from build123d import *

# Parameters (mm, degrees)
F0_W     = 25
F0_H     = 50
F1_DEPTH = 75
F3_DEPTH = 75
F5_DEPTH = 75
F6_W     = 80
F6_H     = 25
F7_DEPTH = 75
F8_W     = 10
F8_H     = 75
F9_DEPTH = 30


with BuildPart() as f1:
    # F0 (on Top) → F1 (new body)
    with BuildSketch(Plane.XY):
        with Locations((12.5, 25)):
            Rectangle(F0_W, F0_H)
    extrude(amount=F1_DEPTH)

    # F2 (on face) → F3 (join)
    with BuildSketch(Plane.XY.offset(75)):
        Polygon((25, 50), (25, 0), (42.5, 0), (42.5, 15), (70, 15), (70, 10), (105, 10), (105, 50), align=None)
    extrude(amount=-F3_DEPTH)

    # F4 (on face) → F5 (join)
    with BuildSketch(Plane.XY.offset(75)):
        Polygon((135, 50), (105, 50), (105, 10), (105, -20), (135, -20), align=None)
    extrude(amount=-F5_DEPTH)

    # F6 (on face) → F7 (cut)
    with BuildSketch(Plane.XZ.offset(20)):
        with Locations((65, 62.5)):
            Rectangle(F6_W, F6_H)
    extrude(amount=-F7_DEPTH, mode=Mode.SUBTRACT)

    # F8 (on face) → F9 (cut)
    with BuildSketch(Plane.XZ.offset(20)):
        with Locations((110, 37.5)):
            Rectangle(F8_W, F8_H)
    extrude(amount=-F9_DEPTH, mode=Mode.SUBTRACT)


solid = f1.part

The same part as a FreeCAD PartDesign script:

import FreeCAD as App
import Part
import Sketcher
Q = App.Units.Quantity

doc = App.newDocument("Part")
params = doc.addObject("Spreadsheet::Sheet", "Params")
for row, (alias, value) in enumerate([
    ("sketch1_width", "25 mm"),
    ("sketch1_height", "50 mm"),
    ("pad1_length", "75 mm"),
    ("sketch2_width", "35 mm"),
    ("sketch2_width2", "80 mm"),
    ("sketch2_height", "50 mm"),
    ("sketch2_height2", "15 mm"),
    ("sketch2_height3", "5 mm"),
    ("pad2_length", "75 mm"),
    ("sketch3_width", "30 mm"),
    ("sketch3_height", "70 mm"),
    ("pad3_length", "75 mm"),
    ("sketch4_width", "80 mm"),
    ("sketch4_height", "25 mm"),
    ("pocket1_length", "75 mm"),
    ("sketch5_width", "10 mm"),
    ("sketch5_height", "75 mm"),
    ("pocket2_length", "30 mm"),
], start=1):
    params.set(f"A{row}", alias)
    params.set(f"B{row}", "=" + value)
    params.setAlias(f"B{row}", alias)

body = doc.addObject("PartDesign::Body", "Body")

# Sketch on XY plane
sketch1 = doc.addObject("Sketcher::SketchObject", "Sketch")
body.addObject(sketch1)
sketch1.AttachmentSupport = (doc.XY_Plane, [""])
sketch1.MapMode = "FlatFace"
sketch1.addGeometry([
    Part.LineSegment(App.Vector(0, 50, 0), App.Vector(0, 0, 0)),
    Part.LineSegment(App.Vector(0, 0, 0), App.Vector(25, 0, 0)),
    Part.LineSegment(App.Vector(25, 0, 0), App.Vector(25, 50, 0)),
    Part.LineSegment(App.Vector(25, 50, 0), App.Vector(0, 50, 0)),
], False)
sketch1.addConstraint([
    Sketcher.Constraint("Coincident", 0, 2, 1, 1),
    Sketcher.Constraint("Coincident", 1, 2, 2, 1),
    Sketcher.Constraint("Coincident", 2, 2, 3, 1),
    Sketcher.Constraint("Coincident", 3, 2, 0, 1),
    Sketcher.Constraint("Vertical", 0),
    Sketcher.Constraint("Horizontal", 1),
    Sketcher.Constraint("Vertical", 2),
    Sketcher.Constraint("Horizontal", 3),
    Sketcher.Constraint("Coincident", 0, 2, -1, 1),
    Sketcher.Constraint("DistanceX", 1, 1, 1, 2, Q("25 mm")),
    Sketcher.Constraint("DistanceY", 0, 2, 0, 1, Q("50 mm")),
])
sketch1.setExpression("Constraints[9]", "Params.sketch1_width")
sketch1.setExpression("Constraints[10]", "Params.sketch1_height")
pad1 = doc.addObject("PartDesign::Pad", "Pad")
body.addObject(pad1)
pad1.Profile = sketch1
pad1.setExpression("Length", "Params.pad1_length")

# Sketch on XY plane
sketch2 = doc.addObject("Sketcher::SketchObject", "Sketch001")
body.addObject(sketch2)
sketch2.AttachmentSupport = (doc.XY_Plane, [""])
sketch2.MapMode = "FlatFace"
sketch2.AttachmentOffset = App.Placement(App.Vector(0, 0, 75), App.Rotation())
sketch2.addGeometry([
    Part.LineSegment(App.Vector(25, 50, 0), App.Vector(25, 0, 0)),  # 0
    Part.LineSegment(App.Vector(25, 0, 0), App.Vector(42, 0, 0)),  # 1
    Part.LineSegment(App.Vector(42, 0, 0), App.Vector(42, 15, 0)),  # 2
    Part.LineSegment(App.Vector(42, 15, 0), App.Vector(70, 15, 0)),  # 3
    Part.LineSegment(App.Vector(70, 15, 0), App.Vector(70, 10, 0)),  # 4
    Part.LineSegment(App.Vector(70, 10, 0), App.Vector(105, 10, 0)),  # 5
    Part.LineSegment(App.Vector(105, 10, 0), App.Vector(105, 50, 0)),  # 6
    Part.LineSegment(App.Vector(105, 50, 0), App.Vector(25, 50, 0)),  # 7
], False)
sketch2.addConstraint([
    Sketcher.Constraint("Coincident", 0, 2, 1, 1),
    Sketcher.Constraint("Coincident", 1, 2, 2, 1),
    Sketcher.Constraint("Coincident", 2, 2, 3, 1),
    Sketcher.Constraint("Coincident", 3, 2, 4, 1),
    Sketcher.Constraint("Coincident", 4, 2, 5, 1),
    Sketcher.Constraint("Coincident", 5, 2, 6, 1),
    Sketcher.Constraint("Coincident", 6, 2, 7, 1),
    Sketcher.Constraint("Coincident", 7, 2, 0, 1),
    Sketcher.Constraint("Vertical", 0),
    Sketcher.Constraint("Horizontal", 1),
    Sketcher.Constraint("Vertical", 2),
    Sketcher.Constraint("Horizontal", 3),
    Sketcher.Constraint("Vertical", 4),
    Sketcher.Constraint("Horizontal", 5),
    Sketcher.Constraint("Vertical", 6),
    Sketcher.Constraint("Horizontal", 7),
    Sketcher.Constraint("PointOnObject", 0, 2, -1),
    Sketcher.Constraint("DistanceX", 5, 1, 5, 2, Q("35 mm")),
    Sketcher.Constraint("DistanceX", 7, 2, 7, 1, Q("80 mm")),
    Sketcher.Constraint("DistanceY", 0, 2, 0, 1, Q("50 mm")),
    Sketcher.Constraint("DistanceY", 2, 1, 2, 2, Q("15 mm")),
    Sketcher.Constraint("DistanceY", 4, 2, 4, 1, Q("5 mm")),
    Sketcher.Constraint("DistanceX", 1, 1, 1, 2, Q("17.5 mm")),
    Sketcher.Constraint("DistanceX", -1, 1, 0, 2, Q("25 mm")),
])
sketch2.setExpression("Constraints[17]", "Params.sketch2_width")
sketch2.setExpression("Constraints[18]", "Params.sketch2_width2")
sketch2.setExpression("Constraints[19]", "Params.sketch2_height")
sketch2.setExpression("Constraints[20]", "Params.sketch2_height2")
sketch2.setExpression("Constraints[21]", "Params.sketch2_height3")
pad2 = doc.addObject("PartDesign::Pad", "Pad001")
body.addObject(pad2)
pad2.Profile = sketch2
pad2.setExpression("Length", "Params.pad2_length")
pad2.Reversed = True

# Sketch on XY plane
sketch3 = doc.addObject("Sketcher::SketchObject", "Sketch002")
body.addObject(sketch3)
sketch3.AttachmentSupport = (doc.XY_Plane, [""])
sketch3.MapMode = "FlatFace"
sketch3.AttachmentOffset = App.Placement(App.Vector(0, 0, 75), App.Rotation())
sketch3.addGeometry([
    Part.LineSegment(App.Vector(135, 50, 0), App.Vector(105, 50, 0)),
    Part.LineSegment(App.Vector(105, 50, 0), App.Vector(105, -20, 0)),
    Part.LineSegment(App.Vector(105, -20, 0), App.Vector(135, -20, 0)),
    Part.LineSegment(App.Vector(135, -20, 0), App.Vector(135, 50, 0)),
], False)
sketch3.addConstraint([
    Sketcher.Constraint("Coincident", 0, 2, 1, 1),
    Sketcher.Constraint("Coincident", 1, 2, 2, 1),
    Sketcher.Constraint("Coincident", 2, 2, 3, 1),
    Sketcher.Constraint("Coincident", 3, 2, 0, 1),
    Sketcher.Constraint("Horizontal", 0),
    Sketcher.Constraint("Vertical", 1),
    Sketcher.Constraint("Horizontal", 2),
    Sketcher.Constraint("Vertical", 3),
    Sketcher.Constraint("DistanceX", 0, 2, 0, 1, Q("30 mm")),
    Sketcher.Constraint("DistanceY", 1, 2, 1, 1, Q("70 mm")),
    Sketcher.Constraint("DistanceX", -1, 1, 0, 2, Q("105 mm")),
    Sketcher.Constraint("DistanceY", -1, 1, 0, 2, Q("50 mm")),
])
sketch3.setExpression("Constraints[8]", "Params.sketch3_width")
sketch3.setExpression("Constraints[9]", "Params.sketch3_height")
pad3 = doc.addObject("PartDesign::Pad", "Pad002")
body.addObject(pad3)
pad3.Profile = sketch3
pad3.setExpression("Length", "Params.pad3_length")
pad3.Reversed = True

# Sketch on XZ plane
sketch4 = doc.addObject("Sketcher::SketchObject", "Sketch003")
body.addObject(sketch4)
sketch4.AttachmentSupport = (doc.XZ_Plane, [""])
sketch4.MapMode = "FlatFace"
sketch4.AttachmentOffset = App.Placement(App.Vector(0, 0, 20), App.Rotation())
sketch4.addGeometry([
    Part.LineSegment(App.Vector(25, 75, 0), App.Vector(25, 50, 0)),
    Part.LineSegment(App.Vector(25, 50, 0), App.Vector(105, 50, 0)),
    Part.LineSegment(App.Vector(105, 50, 0), App.Vector(105, 75, 0)),
    Part.LineSegment(App.Vector(105, 75, 0), App.Vector(25, 75, 0)),
], False)
sketch4.addConstraint([
    Sketcher.Constraint("Coincident", 0, 2, 1, 1),
    Sketcher.Constraint("Coincident", 1, 2, 2, 1),
    Sketcher.Constraint("Coincident", 2, 2, 3, 1),
    Sketcher.Constraint("Coincident", 3, 2, 0, 1),
    Sketcher.Constraint("Vertical", 0),
    Sketcher.Constraint("Horizontal", 1),
    Sketcher.Constraint("Vertical", 2),
    Sketcher.Constraint("Horizontal", 3),
    Sketcher.Constraint("DistanceX", 1, 1, 1, 2, Q("80 mm")),
    Sketcher.Constraint("DistanceY", 0, 2, 0, 1, Q("25 mm")),
    Sketcher.Constraint("DistanceX", -1, 1, 0, 2, Q("25 mm")),
    Sketcher.Constraint("DistanceY", -1, 1, 0, 2, Q("50 mm")),
])
sketch4.setExpression("Constraints[8]", "Params.sketch4_width")
sketch4.setExpression("Constraints[9]", "Params.sketch4_height")
pocket1 = doc.addObject("PartDesign::Pocket", "Pocket")
body.addObject(pocket1)
pocket1.Profile = sketch4
pocket1.setExpression("Length", "Params.pocket1_length")

# Sketch on XZ plane
sketch5 = doc.addObject("Sketcher::SketchObject", "Sketch004")
body.addObject(sketch5)
sketch5.AttachmentSupport = (doc.XZ_Plane, [""])
sketch5.MapMode = "FlatFace"
sketch5.AttachmentOffset = App.Placement(App.Vector(0, 0, 20), App.Rotation())
sketch5.addGeometry([
    Part.LineSegment(App.Vector(105, 75, 0), App.Vector(105, 0, 0)),
    Part.LineSegment(App.Vector(105, 0, 0), App.Vector(115, 0, 0)),
    Part.LineSegment(App.Vector(115, 0, 0), App.Vector(115, 75, 0)),
    Part.LineSegment(App.Vector(115, 75, 0), App.Vector(105, 75, 0)),
], False)
sketch5.addConstraint([
    Sketcher.Constraint("Coincident", 0, 2, 1, 1),
    Sketcher.Constraint("Coincident", 1, 2, 2, 1),
    Sketcher.Constraint("Coincident", 2, 2, 3, 1),
    Sketcher.Constraint("Coincident", 3, 2, 0, 1),
    Sketcher.Constraint("Vertical", 0),
    Sketcher.Constraint("Horizontal", 1),
    Sketcher.Constraint("Vertical", 2),
    Sketcher.Constraint("Horizontal", 3),
    Sketcher.Constraint("PointOnObject", 0, 2, -1),
    Sketcher.Constraint("DistanceX", 1, 1, 1, 2, Q("10 mm")),
    Sketcher.Constraint("DistanceY", 0, 2, 0, 1, Q("75 mm")),
    Sketcher.Constraint("DistanceX", -1, 1, 0, 2, Q("105 mm")),
])
sketch5.setExpression("Constraints[9]", "Params.sketch5_width")
sketch5.setExpression("Constraints[10]", "Params.sketch5_height")
pocket2 = doc.addObject("PartDesign::Pocket", "Pocket001")
body.addObject(pocket2)
pocket2.Profile = sketch5
pocket2.setExpression("Length", "Params.pocket2_length")

doc.recompute()
